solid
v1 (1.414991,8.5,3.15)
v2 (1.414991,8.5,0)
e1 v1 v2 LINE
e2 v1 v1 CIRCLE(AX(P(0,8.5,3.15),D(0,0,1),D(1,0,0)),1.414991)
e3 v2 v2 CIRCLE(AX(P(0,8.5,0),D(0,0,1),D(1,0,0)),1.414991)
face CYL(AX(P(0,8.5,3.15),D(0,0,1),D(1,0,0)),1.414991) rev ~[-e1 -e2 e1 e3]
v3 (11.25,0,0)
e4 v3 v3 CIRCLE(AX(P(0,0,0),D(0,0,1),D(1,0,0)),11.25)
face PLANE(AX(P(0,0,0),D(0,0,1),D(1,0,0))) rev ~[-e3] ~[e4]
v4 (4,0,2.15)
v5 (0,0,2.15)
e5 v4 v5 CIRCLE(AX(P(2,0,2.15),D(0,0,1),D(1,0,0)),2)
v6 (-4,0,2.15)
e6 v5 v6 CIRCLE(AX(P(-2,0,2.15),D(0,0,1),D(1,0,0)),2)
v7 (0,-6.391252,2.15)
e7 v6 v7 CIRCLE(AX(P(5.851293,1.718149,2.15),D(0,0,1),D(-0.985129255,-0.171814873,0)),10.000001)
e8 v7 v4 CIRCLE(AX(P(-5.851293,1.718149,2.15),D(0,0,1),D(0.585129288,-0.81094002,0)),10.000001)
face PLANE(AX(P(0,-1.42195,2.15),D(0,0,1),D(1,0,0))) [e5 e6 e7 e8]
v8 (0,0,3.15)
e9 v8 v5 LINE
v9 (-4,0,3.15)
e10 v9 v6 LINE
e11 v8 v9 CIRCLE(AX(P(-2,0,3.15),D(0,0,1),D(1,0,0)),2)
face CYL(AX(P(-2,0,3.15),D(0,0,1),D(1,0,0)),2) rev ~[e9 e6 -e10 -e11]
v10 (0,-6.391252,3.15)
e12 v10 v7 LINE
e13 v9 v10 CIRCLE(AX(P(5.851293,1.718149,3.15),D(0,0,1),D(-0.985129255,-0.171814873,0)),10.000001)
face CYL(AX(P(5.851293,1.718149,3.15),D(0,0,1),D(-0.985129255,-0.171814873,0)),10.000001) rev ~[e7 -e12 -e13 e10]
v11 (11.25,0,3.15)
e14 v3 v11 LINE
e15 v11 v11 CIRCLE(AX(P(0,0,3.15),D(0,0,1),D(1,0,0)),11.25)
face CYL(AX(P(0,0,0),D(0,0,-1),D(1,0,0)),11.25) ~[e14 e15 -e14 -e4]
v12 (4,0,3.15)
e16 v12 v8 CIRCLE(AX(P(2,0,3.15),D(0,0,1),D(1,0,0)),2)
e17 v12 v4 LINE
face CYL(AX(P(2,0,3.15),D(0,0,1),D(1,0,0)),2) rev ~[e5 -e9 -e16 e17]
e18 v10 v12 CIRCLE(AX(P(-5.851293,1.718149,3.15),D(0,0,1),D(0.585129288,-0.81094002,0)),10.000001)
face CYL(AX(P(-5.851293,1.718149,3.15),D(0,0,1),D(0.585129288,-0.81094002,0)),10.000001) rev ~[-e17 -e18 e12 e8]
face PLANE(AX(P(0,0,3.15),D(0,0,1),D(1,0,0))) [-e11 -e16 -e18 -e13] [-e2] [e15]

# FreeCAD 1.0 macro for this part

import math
import FreeCAD as App
import Part
import Sketcher

V = App.Vector

doc = App.newDocument("Part")
body = doc.addObject("PartDesign::Body", "Body")

sketch1 = body.newObject("Sketcher::SketchObject", "Sketch")
sketch1.AttachmentSupport = (doc.getObject("XY_Plane"), [""])
sketch1.MapMode = "FlatFace"
sketch1.addGeometry(Part.Circle(V(0, 0, 0), V(0, 0, 1), 11), False)
sketch1.addConstraint([
    Sketcher.Constraint("Coincident", 0, 3, -1, 1),
    Sketcher.Constraint("Diameter", 0, 22.5),
])
pad1 = body.newObject("PartDesign::Pad", "Pad")
pad1.Profile = sketch1
pad1.Length = 3.15

sketch2 = body.newObject("Sketcher::SketchObject", "Sketch001")
sketch2.AttachmentSupport = (doc.getObject("XY_Plane"), [""])
sketch2.MapMode = "FlatFace"
sketch2.AttachmentOffset = App.Placement(V(0, 0, 3.15), App.Rotation())
sketch2.addGeometry(Part.Circle(V(0, 8.5, 0), V(0, 0, 1), 1.4), False)
sketch2.addConstraint([
    Sketcher.Constraint("PointOnObject", 0, 3, -2),
    Sketcher.Constraint("DistanceY", -1, 1, 0, 3, 8.5),
    Sketcher.Constraint("Diameter", 0, 2.829982),
])
pocket1 = body.newObject("PartDesign::Pocket", "Pocket")
pocket1.Profile = sketch2
pocket1.Type = "ThroughAll"

sketch3 = body.newObject("Sketcher::SketchObject", "Sketch002")
sketch3.AttachmentSupport = (doc.getObject("XY_Plane"), [""])
sketch3.MapMode = "FlatFace"
sketch3.AttachmentOffset = App.Placement(V(0, 0, 3.15), App.Rotation())
sketch3.addGeometry([
    Part.ArcOfCircle(Part.Circle(V(-2, 0, 0), V(0, 0, 1), 2), math.radians(0), math.radians(180)),
    Part.ArcOfCircle(Part.Circle(V(5.9, 1.7, 0), V(0, 0, 1), 10), math.radians(-170), math.radians(-126)),
    Part.ArcOfCircle(Part.Circle(V(-5.9, 1.7, 0), V(0, 0, 1), 10), math.radians(-54), math.radians(-10)),
    Part.ArcOfCircle(Part.Circle(V(2, 0, 0), V(0, 0, 1), 2), math.radians(0), math.radians(180)),
], False)
sketch3.addConstraint([
    Sketcher.Constraint("Coincident", 0, 2, 1, 1),
    Sketcher.Constraint("Coincident", 1, 2, 2, 1),
    Sketcher.Constraint("Coincident", 2, 2, 3, 1),
    Sketcher.Constraint("Tangent", 3, 2, 0, 1),
    Sketcher.Constraint("Coincident", 3, 2, -1, 1),
    Sketcher.Constraint("Equal", 1, 2),
    Sketcher.Constraint("Equal", 0, 3),
    Sketcher.Constraint("Symmetric", 1, 3, 2, 3, -2),
    Sketcher.Constraint("PointOnObject", 0, 3, -1),
    Sketcher.Constraint("PointOnObject", 0, 2, -1),
    Sketcher.Constraint("Radius", 0, 2.0),
    Sketcher.Constraint("Radius", 1, 10.000001),
    Sketcher.Constraint("DistanceY", 1, 2, 1, 3, 8.109401),
])
pocket2 = body.newObject("PartDesign::Pocket", "Pocket001")
pocket2.Profile = sketch3
pocket2.Length = 1

doc.recompute()
